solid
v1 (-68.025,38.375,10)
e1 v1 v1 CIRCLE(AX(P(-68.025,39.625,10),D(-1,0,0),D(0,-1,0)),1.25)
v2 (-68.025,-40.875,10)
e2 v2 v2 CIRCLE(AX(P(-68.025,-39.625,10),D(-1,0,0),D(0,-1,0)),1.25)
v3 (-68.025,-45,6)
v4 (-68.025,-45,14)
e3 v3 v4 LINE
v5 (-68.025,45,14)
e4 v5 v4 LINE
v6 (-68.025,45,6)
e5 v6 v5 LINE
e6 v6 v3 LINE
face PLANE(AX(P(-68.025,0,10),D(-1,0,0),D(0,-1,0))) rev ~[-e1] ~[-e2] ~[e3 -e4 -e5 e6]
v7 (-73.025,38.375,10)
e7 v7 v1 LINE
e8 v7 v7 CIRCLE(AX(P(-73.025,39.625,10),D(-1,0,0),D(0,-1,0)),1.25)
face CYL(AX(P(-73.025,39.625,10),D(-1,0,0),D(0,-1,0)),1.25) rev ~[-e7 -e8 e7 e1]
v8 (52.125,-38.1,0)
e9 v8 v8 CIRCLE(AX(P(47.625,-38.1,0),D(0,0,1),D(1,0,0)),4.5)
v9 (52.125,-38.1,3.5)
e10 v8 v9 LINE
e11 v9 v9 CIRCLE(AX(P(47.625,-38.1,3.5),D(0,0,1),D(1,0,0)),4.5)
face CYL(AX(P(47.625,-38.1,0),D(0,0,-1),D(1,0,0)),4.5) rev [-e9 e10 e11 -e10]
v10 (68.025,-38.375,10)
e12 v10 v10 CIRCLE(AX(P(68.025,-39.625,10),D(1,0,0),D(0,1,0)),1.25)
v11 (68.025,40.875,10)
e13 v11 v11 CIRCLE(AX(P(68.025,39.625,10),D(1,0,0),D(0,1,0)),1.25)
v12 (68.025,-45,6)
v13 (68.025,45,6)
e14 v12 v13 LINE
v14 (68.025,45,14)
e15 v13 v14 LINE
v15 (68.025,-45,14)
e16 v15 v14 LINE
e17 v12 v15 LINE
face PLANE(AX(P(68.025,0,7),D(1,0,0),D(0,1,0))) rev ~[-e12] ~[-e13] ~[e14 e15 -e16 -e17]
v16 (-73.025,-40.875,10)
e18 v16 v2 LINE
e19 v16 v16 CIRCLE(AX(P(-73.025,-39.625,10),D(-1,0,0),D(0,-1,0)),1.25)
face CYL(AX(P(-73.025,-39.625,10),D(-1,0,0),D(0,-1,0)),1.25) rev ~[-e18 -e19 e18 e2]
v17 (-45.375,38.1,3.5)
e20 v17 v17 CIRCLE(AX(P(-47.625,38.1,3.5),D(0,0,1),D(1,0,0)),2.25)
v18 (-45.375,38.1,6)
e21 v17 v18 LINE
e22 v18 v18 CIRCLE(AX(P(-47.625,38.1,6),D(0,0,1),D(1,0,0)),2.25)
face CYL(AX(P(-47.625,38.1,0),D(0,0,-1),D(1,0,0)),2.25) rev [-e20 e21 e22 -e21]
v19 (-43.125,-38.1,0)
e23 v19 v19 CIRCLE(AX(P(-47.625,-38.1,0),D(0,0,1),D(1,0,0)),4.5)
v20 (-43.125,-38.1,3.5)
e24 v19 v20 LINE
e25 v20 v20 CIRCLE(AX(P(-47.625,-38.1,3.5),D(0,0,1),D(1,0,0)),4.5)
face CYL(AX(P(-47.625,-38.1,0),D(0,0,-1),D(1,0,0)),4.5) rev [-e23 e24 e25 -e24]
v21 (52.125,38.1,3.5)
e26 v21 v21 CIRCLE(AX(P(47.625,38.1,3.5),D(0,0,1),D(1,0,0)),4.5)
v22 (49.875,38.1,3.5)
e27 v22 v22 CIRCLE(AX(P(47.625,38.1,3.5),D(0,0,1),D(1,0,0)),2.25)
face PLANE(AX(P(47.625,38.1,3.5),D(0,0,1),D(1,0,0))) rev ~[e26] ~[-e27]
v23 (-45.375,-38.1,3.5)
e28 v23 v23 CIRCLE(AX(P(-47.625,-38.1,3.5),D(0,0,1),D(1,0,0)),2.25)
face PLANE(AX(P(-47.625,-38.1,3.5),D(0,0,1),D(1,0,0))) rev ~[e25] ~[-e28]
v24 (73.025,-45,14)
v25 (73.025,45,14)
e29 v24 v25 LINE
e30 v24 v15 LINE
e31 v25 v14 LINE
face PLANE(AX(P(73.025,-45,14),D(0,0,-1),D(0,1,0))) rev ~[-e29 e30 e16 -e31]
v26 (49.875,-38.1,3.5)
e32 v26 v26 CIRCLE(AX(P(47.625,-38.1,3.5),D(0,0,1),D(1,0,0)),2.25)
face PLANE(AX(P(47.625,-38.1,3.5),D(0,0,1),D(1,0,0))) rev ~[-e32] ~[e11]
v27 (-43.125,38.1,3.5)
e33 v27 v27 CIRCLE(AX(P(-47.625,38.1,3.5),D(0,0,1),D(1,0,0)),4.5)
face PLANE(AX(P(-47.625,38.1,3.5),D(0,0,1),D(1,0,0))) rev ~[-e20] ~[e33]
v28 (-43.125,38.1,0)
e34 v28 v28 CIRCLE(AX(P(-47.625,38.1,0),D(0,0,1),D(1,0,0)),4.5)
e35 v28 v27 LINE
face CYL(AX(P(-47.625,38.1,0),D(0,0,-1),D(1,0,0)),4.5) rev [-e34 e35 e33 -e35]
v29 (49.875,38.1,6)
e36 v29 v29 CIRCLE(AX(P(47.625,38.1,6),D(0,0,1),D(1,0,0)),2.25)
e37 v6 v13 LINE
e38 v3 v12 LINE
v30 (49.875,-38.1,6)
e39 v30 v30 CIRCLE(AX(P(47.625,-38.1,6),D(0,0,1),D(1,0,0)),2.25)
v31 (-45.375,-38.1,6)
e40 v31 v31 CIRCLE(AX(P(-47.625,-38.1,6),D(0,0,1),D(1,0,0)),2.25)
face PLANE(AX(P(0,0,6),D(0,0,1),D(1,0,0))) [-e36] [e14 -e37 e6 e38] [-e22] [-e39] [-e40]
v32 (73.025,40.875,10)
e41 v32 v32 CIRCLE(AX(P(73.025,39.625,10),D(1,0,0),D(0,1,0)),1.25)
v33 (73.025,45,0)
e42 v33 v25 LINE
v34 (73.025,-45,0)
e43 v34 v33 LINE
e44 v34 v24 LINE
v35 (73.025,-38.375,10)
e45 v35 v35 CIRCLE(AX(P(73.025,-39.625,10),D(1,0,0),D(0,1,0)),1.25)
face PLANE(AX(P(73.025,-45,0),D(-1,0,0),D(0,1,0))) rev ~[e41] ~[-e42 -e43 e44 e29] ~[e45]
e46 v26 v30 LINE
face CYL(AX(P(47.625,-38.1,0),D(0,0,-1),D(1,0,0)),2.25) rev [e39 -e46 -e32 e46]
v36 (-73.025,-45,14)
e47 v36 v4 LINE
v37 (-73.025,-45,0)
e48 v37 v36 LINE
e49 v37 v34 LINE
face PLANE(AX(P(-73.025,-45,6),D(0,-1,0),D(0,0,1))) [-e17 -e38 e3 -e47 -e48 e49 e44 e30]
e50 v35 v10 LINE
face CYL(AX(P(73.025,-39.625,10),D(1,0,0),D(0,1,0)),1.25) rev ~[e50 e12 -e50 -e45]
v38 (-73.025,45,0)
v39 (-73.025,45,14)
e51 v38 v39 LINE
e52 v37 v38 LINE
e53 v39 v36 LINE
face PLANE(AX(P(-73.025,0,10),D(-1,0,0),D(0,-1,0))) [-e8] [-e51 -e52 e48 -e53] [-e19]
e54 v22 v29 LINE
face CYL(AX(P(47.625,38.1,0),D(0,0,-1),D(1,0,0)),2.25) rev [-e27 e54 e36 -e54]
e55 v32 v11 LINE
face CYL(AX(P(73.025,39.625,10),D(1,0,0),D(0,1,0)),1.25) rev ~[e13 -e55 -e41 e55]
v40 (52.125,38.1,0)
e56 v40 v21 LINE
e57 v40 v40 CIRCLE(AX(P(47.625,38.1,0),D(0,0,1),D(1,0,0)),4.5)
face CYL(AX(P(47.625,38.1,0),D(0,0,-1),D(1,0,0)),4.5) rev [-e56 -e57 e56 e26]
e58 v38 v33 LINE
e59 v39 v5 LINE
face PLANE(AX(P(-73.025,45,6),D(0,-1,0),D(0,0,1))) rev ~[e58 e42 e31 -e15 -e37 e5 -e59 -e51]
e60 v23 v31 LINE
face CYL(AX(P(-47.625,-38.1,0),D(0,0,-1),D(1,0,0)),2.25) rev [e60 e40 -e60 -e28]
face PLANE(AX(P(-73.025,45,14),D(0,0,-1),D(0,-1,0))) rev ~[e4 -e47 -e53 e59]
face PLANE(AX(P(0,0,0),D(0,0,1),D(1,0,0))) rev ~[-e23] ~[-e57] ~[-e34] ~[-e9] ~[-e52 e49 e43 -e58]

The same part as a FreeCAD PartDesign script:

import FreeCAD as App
import Part
import Sketcher

doc = App.newDocument("Part")
body = doc.addObject("PartDesign::Body", "Body")

sketch1 = body.newObject("Sketcher::SketchObject", "Sketch")
sketch1.AttachmentSupport = (doc.getObject("XY_Plane"), [""])
sketch1.MapMode = "FlatFace"
sketch1.addGeometry([
    Part.LineSegment(App.Vector(-73.025, 45, 0), App.Vector(-73.025, -45, 0)),
    Part.LineSegment(App.Vector(-73.025, -45, 0), App.Vector(73.025, -45, 0)),
    Part.LineSegment(App.Vector(73.025, -45, 0), App.Vector(73.025, 45, 0)),
    Part.LineSegment(App.Vector(73.025, 45, 0), App.Vector(-73.025, 45, 0)),
    Part.Circle(App.Vector(-47.625, -38.1, 0), App.Vector(0, 0, 1), 2.25),
    Part.Circle(App.Vector(47.625, -38.1, 0), App.Vector(0, 0, 1), 2.25),
    Part.Circle(App.Vector(-47.625, 38.1, 0), App.Vector(0, 0, 1), 2.25),
    Part.Circle(App.Vector(47.625, 38.1, 0), App.Vector(0, 0, 1), 2.25),
], False)
sketch1.addConstraint([
    Sketcher.Constraint("Coincident", 0, 2, 1, 1),
    Sketcher.Constraint("Coincident", 1, 2, 2, 1),
    Sketcher.Constraint("Coincident", 2, 2, 3, 1),
    Sketcher.Constraint("Coincident", 3, 2, 0, 1),
    Sketcher.Constraint("Vertical", 0),
    Sketcher.Constraint("Horizontal", 1),
    Sketcher.Constraint("Vertical", 2),
    Sketcher.Constraint("Horizontal", 3),
    Sketcher.Constraint("Equal", 4, 5),
    Sketcher.Constraint("Equal", 5, 6),
    Sketcher.Constraint("Equal", 6, 7),
    Sketcher.Constraint("Symmetric", 5, 3, 6, 3, -1, 1),
    Sketcher.Constraint("Symmetric", 4, 3, 7, 3, -1, 1),
    Sketcher.Constraint("Symmetric", 0, 2, 2, 2, -1, 1),
    Sketcher.Constraint("Symmetric", 4, 3, 5, 3, -2),
    Sketcher.Constraint("Diameter", 4, 4.5),
    Sketcher.Constraint("DistanceY", 0, 2, 0, 1, 90.0),
    Sketcher.Constraint("DistanceX", 1, 1, 1, 2, 146.05),
    Sketcher.Constraint("DistanceY", 4, 3, -1, 1, 38.1),
    Sketcher.Constraint("DistanceX", 0, 2, 4, 3, 25.4),
])
pad1 = body.newObject("PartDesign::Pad", "Pad")
pad1.Profile = sketch1
pad1.Length = 6

sketch2 = body.newObject("Sketcher::SketchObject", "Sketch001")
sketch2.AttachmentSupport = (doc.getObject("XY_Plane"), [""])
sketch2.MapMode = "FlatFace"
sketch2.addGeometry([
    Part.Circle(App.Vector(-47.625, 38.1, 0), App.Vector(0, 0, 1), 4.5),
    Part.Circle(App.Vector(-47.625, 38.1, 0), App.Vector(0, 0, 1), 2.25),
    Part.Circle(App.Vector(-47.625, -38.1, 0), App.Vector(0, 0, 1), 4.5),
    Part.Circle(App.Vector(-47.625, -38.1, 0), App.Vector(0, 0, 1), 2.25),
    Part.Circle(App.Vector(47.625, -38.1, 0), App.Vector(0, 0, 1), 4.5),
    Part.Circle(App.Vector(47.625, -38.1, 0), App.Vector(0, 0, 1), 2.25),
    Part.Circle(App.Vector(47.625, 38.1, 0), App.Vector(0, 0, 1), 4.5),
    Part.Circle(App.Vector(47.625, 38.1, 0), App.Vector(0, 0, 1), 2.25),
], False)
sketch2.addConstraint([
    Sketcher.Constraint("Coincident", 1, 3, 0, 3),
    Sketcher.Constraint("Coincident", 3, 3, 2, 3),
    Sketcher.Constraint("Coincident", 5, 3, 4, 3),
    Sketcher.Constraint("Coincident", 7, 3, 6, 3),
    Sketcher.Constraint("Equal", 0, 2),
    Sketcher.Constraint("Equal", 1, 3),
    Sketcher.Constraint("Equal", 2, 4),
    Sketcher.Constraint("Equal", 3, 5),
    Sketcher.Constraint("Equal", 4, 6),
    Sketcher.Constraint("Equal", 5, 7),
    Sketcher.Constraint("Symmetric", 0, 3, 4, 3, -1, 1),
    Sketcher.Constraint("Symmetric", 2, 3, 6, 3, -1, 1),
    Sketcher.Constraint("Symmetric", 2, 3, 4, 3, -2),
    Sketcher.Constraint("Diameter", 0, 9.0),
    Sketcher.Constraint("Diameter", 1, 4.5),
    Sketcher.Constraint("DistanceY", -1, 1, 0, 3, 38.1),
    Sketcher.Constraint("DistanceX", 2, 3, 4, 3, 95.25),
])
pocket1 = body.newObject("PartDesign::Pocket", "Pocket")
pocket1.Profile = sketch2
pocket1.Length = 3.5
pocket1.Reversed = True

sketch3 = body.newObject("Sketcher::SketchObject", "Sketch002")
sketch3.AttachmentSupport = (doc.getObject("YZ_Plane"), [""])
sketch3.MapMode = "FlatFace"
sketch3.AttachmentOffset = App.Placement(App.Vector(0, 0, 73.025), App.Rotation())
sketch3.addGeometry([
    Part.LineSegment(App.Vector(-45, 14, 0), App.Vector(-45, 0, 0)),
    Part.LineSegment(App.Vector(-45, 0, 0), App.Vector(45, 0, 0)),
    Part.LineSegment(App.Vector(45, 0, 0), App.Vector(45, 14, 0)),
    Part.LineSegment(App.Vector(45, 14, 0), App.Vector(-45, 14, 0)),
    Part.Circle(App.Vector(-39.625, 10, 0), App.Vector(0, 0, 1), 1.25),
    Part.Circle(App.Vector(39.625, 10, 0), App.Vector(0, 0, 1), 1.25),
], False)
sketch3.addConstraint([
    Sketcher.Constraint("Coincident", 0, 2, 1, 1),
    Sketcher.Constraint("Coincident", 1, 2, 2, 1),
    Sketcher.Constraint("Coincident", 2, 2, 3, 1),
    Sketcher.Constraint("Coincident", 3, 2, 0, 1),
    Sketcher.Constraint("Vertical", 0),
    Sketcher.Constraint("Horizontal", 1),
    Sketcher.Constraint("Vertical", 2),
    Sketcher.Constraint("Horizontal", 3),
    Sketcher.Constraint("Equal", 4, 5),
    Sketcher.Constraint("Symmetric", 0, 2, 1, 2, -1, 1),
    Sketcher.Constraint("Symmetric", 4, 3, 5, 3, -2),
    Sketcher.Constraint("Diameter", 4, 2.5),
    Sketcher.Constraint("DistanceX", 1, 1, 1, 2, 90.0),
    Sketcher.Constraint("DistanceY", 0, 2, 0, 1, 14.0),
    Sketcher.Constraint("DistanceY", -1, 1, 4, 3, 10.0),
    Sketcher.Constraint("DistanceX", 4, 3, 5, 3, 79.25),
])
pad2 = body.newObject("PartDesign::Pad", "Pad001")
pad2.Profile = sketch3
pad2.Length = 5
pad2.Reversed = True

sketch4 = body.newObject("Sketcher::SketchObject", "Sketch003")
sketch4.AttachmentSupport = (doc.getObject("YZ_Plane"), [""])
sketch4.MapMode = "FlatFace"
sketch4.AttachmentOffset = App.Placement(App.Vector(0, 0, -73.025), App.Rotation())
sketch4.addGeometry([
    Part.LineSegment(App.Vector(45, 14, 0), App.Vector(45, 6, 0)),
    Part.LineSegment(App.Vector(45, 6, 0), App.Vector(-45, 6, 0)),
    Part.LineSegment(App.Vector(-45, 6, 0), App.Vector(-45, 14, 0)),
    Part.LineSegment(App.Vector(-45, 14, 0), App.Vector(45, 14, 0)),
    Part.Circle(App.Vector(39.625, 10, 0), App.Vector(0, 0, 1), 1.25),
    Part.Circle(App.Vector(-39.625, 10, 0), App.Vector(0, 0, 1), 1.25),
], False)
sketch4.addConstraint([
    Sketcher.Constraint("Coincident", 0, 2, 1, 1),
    Sketcher.Constraint("Coincident", 1, 2, 2, 1),
    Sketcher.Constraint("Coincident", 2, 2, 3, 1),
    Sketcher.Constraint("Coincident", 3, 2, 0, 1),
    Sketcher.Constraint("Vertical", 0),
    Sketcher.Constraint("Horizontal", 1),
    Sketcher.Constraint("Vertical", 2),
    Sketcher.Constraint("Horizontal", 3),
    Sketcher.Constraint("Equal", 4, 5),
    Sketcher.Constraint("Symmetric", 4, 3, 5, 3, -2),
    Sketcher.Constraint("Diameter", 4, 2.5),
    Sketcher.Constraint("DistanceX", 1, 2, 1, 1, 90.0),
    Sketcher.Constraint("DistanceY", 0, 2, 0, 1, 8.0),
    Sketcher.Constraint("DistanceY", -1, 1, 4, 3, 10.0),
    Sketcher.Constraint("DistanceX", -1, 1, 0, 2, 45.0),
    Sketcher.Constraint("DistanceY", -1, 1, 0, 2, 6.0),
    Sketcher.Constraint("DistanceX", 5, 3, 4, 3, 79.25),
])
pad3 = body.newObject("PartDesign::Pad", "Pad002")
pad3.Profile = sketch4
pad3.Length = 5

doc.recompute()
